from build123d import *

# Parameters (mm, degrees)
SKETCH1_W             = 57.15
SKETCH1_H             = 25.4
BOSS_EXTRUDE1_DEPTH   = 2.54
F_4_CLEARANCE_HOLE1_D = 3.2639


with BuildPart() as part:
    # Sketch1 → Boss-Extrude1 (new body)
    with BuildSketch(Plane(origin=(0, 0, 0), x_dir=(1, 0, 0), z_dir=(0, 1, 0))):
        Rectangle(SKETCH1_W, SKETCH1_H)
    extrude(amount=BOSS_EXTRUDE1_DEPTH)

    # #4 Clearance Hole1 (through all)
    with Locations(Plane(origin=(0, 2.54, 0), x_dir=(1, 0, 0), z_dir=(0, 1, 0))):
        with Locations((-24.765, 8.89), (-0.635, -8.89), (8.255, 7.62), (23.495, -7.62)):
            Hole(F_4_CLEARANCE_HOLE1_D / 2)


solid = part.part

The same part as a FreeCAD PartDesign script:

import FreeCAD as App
import Part
import Sketcher
from FreeCAD import Vector
Q = App.Units.Quantity


def add_polygon(sketch, points):
    """Adds a closed chain of lines whose ends are joined by coincident constraints."""
    first, n = sketch.GeometryCount, len(points)
    for a, b in zip(points, points[1:] + points[:1]):
        sketch.addGeometry(Part.LineSegment(App.Vector(*a, 0), App.Vector(*b, 0)), False)
    for i in range(n):
        sketch.addConstraint(Sketcher.Constraint("Coincident", first + i, 2, first + (i + 1) % n, 1))

doc = App.newDocument("Part")
body = doc.addObject("PartDesign::Body", "Body")

sketch1 = doc.addObject("Sketcher::SketchObject", "Sketch")
body.addObject(sketch1)
sketch1.AttachmentSupport = (doc.XZ_Plane, [""])
sketch1.MapMode = "FlatFace"
add_polygon(sketch1, [(-29, -13), (-29, 13), (29, 13), (29, -13)])
sketch1.addConstraint(Sketcher.Constraint("Vertical", 0))
sketch1.addConstraint(Sketcher.Constraint("Horizontal", 1))
sketch1.addConstraint(Sketcher.Constraint("Vertical", 2))
sketch1.addConstraint(Sketcher.Constraint("Horizontal", 3))
sketch1.addConstraint(Sketcher.Constraint("Symmetric", 0, 2, 2, 2, -1, 1))
sketch1.addConstraint(Sketcher.Constraint("DistanceY", 0, 1, 0, 2, Q("1 in")))
sketch1.addConstraint(Sketcher.Constraint("DistanceX", 1, 1, 1, 2, Q("2.25 in")))
pad1 = doc.addObject("PartDesign::Pad", "Pad")
body.addObject(pad1)
pad1.Profile = sketch1
pad1.Length = Q("0.1 in")
pad1.Reversed = True

sketch2 = doc.addObject("Sketcher::SketchObject", "Sketch001")
body.addObject(sketch2)
sketch2.AttachmentSupport = (doc.XZ_Plane, [""])
sketch2.MapMode = "FlatFace"
sketch2.AttachmentOffset = App.Placement(Vector(0, 0, -0.1 * 25.4), App.Rotation())
sketch2.addGeometry(Part.Circle(Vector(-24.8, -8.9, 0), Vector(0, 0, 1), 1.6), False)
sketch2.addGeometry(Part.Circle(Vector(-0.6, 8.9, 0), Vector(0, 0, 1), 1.6), False)
sketch2.addGeometry(Part.Circle(Vector(8.3, -7.6, 0), Vector(0, 0, 1), 1.6), False)
sketch2.addGeometry(Part.Circle(Vector(23.5, 7.6, 0), Vector(0, 0, 1), 1.6), False)
sketch2.addConstraint(Sketcher.Constraint("Equal", 0, 1))
sketch2.addConstraint(Sketcher.Constraint("Equal", 1, 2))
sketch2.addConstraint(Sketcher.Constraint("Equal", 2, 3))
sketch2.addConstraint(Sketcher.Constraint("Diameter", 0, Q("0.1285 in")))
sketch2.addConstraint(Sketcher.Constraint("DistanceY", 2, 3, -1, 1, Q("0.3 in")))
sketch2.addConstraint(Sketcher.Constraint("DistanceY", -1, 1, 3, 3, Q("0.3 in")))
sketch2.addConstraint(Sketcher.Constraint("DistanceY", 0, 3, 1, 3, Q("0.7 in")))
sketch2.addConstraint(Sketcher.Constraint("DistanceX", 0, 3, 2, 3, Q("1.3 in")))
sketch2.addConstraint(Sketcher.Constraint("DistanceX", 2, 3, 3, 3, Q("0.6 in")))
sketch2.addConstraint(Sketcher.Constraint("DistanceY", 0, 3, -1, 1, Q("0.35 in")))
sketch2.addConstraint(Sketcher.Constraint("DistanceX", 0, 3, 1, 3, Q("0.95 in")))
sketch2.addConstraint(Sketcher.Constraint("DistanceX", 0, 3, -1, 1, Q("0.975 in")))
doc.recompute()
hole = doc.addObject("PartDesign::Hole", "Hole")
body.addObject(hole)
hole.Profile = sketch2
hole.ThreadType = "None"
hole.Diameter = Q("0.1285 in")
hole.DepthType = "ThroughAll"
hole.Reversed = True

doc.recompute()
